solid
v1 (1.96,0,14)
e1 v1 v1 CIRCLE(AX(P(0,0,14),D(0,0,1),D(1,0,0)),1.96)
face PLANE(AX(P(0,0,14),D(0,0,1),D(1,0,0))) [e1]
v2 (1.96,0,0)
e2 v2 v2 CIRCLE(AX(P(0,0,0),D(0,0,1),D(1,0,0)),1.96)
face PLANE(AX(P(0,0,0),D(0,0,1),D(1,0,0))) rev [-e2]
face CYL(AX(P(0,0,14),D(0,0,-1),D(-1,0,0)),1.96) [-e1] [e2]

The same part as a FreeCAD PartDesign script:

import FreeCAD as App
import Part
import Sketcher

V = App.Vector
Q = App.Units.Quantity

doc = App.newDocument("Part")
body = doc.addObject("PartDesign::Body", "Body")

sketch1 = body.newObject("Sketcher::SketchObject", "Sketch")
sketch1.AttachmentSupport = (doc.getObject("XY_Plane"), [""])
sketch1.MapMode = "FlatFace"
sketch1.addGeometry(Part.Circle(V(0, 0, 0), V(0, 0, 1), 2), False)
sketch1.addConstraint(Sketcher.Constraint("Coincident", 0, 3, -1, 1))
sketch1.addConstraint(Sketcher.Constraint("Diameter", 0, Q("3.92 mm")))
pad1 = body.newObject("PartDesign::Pad", "Pad")
pad1.Profile = sketch1
pad1.Length = 14

doc.recompute()
